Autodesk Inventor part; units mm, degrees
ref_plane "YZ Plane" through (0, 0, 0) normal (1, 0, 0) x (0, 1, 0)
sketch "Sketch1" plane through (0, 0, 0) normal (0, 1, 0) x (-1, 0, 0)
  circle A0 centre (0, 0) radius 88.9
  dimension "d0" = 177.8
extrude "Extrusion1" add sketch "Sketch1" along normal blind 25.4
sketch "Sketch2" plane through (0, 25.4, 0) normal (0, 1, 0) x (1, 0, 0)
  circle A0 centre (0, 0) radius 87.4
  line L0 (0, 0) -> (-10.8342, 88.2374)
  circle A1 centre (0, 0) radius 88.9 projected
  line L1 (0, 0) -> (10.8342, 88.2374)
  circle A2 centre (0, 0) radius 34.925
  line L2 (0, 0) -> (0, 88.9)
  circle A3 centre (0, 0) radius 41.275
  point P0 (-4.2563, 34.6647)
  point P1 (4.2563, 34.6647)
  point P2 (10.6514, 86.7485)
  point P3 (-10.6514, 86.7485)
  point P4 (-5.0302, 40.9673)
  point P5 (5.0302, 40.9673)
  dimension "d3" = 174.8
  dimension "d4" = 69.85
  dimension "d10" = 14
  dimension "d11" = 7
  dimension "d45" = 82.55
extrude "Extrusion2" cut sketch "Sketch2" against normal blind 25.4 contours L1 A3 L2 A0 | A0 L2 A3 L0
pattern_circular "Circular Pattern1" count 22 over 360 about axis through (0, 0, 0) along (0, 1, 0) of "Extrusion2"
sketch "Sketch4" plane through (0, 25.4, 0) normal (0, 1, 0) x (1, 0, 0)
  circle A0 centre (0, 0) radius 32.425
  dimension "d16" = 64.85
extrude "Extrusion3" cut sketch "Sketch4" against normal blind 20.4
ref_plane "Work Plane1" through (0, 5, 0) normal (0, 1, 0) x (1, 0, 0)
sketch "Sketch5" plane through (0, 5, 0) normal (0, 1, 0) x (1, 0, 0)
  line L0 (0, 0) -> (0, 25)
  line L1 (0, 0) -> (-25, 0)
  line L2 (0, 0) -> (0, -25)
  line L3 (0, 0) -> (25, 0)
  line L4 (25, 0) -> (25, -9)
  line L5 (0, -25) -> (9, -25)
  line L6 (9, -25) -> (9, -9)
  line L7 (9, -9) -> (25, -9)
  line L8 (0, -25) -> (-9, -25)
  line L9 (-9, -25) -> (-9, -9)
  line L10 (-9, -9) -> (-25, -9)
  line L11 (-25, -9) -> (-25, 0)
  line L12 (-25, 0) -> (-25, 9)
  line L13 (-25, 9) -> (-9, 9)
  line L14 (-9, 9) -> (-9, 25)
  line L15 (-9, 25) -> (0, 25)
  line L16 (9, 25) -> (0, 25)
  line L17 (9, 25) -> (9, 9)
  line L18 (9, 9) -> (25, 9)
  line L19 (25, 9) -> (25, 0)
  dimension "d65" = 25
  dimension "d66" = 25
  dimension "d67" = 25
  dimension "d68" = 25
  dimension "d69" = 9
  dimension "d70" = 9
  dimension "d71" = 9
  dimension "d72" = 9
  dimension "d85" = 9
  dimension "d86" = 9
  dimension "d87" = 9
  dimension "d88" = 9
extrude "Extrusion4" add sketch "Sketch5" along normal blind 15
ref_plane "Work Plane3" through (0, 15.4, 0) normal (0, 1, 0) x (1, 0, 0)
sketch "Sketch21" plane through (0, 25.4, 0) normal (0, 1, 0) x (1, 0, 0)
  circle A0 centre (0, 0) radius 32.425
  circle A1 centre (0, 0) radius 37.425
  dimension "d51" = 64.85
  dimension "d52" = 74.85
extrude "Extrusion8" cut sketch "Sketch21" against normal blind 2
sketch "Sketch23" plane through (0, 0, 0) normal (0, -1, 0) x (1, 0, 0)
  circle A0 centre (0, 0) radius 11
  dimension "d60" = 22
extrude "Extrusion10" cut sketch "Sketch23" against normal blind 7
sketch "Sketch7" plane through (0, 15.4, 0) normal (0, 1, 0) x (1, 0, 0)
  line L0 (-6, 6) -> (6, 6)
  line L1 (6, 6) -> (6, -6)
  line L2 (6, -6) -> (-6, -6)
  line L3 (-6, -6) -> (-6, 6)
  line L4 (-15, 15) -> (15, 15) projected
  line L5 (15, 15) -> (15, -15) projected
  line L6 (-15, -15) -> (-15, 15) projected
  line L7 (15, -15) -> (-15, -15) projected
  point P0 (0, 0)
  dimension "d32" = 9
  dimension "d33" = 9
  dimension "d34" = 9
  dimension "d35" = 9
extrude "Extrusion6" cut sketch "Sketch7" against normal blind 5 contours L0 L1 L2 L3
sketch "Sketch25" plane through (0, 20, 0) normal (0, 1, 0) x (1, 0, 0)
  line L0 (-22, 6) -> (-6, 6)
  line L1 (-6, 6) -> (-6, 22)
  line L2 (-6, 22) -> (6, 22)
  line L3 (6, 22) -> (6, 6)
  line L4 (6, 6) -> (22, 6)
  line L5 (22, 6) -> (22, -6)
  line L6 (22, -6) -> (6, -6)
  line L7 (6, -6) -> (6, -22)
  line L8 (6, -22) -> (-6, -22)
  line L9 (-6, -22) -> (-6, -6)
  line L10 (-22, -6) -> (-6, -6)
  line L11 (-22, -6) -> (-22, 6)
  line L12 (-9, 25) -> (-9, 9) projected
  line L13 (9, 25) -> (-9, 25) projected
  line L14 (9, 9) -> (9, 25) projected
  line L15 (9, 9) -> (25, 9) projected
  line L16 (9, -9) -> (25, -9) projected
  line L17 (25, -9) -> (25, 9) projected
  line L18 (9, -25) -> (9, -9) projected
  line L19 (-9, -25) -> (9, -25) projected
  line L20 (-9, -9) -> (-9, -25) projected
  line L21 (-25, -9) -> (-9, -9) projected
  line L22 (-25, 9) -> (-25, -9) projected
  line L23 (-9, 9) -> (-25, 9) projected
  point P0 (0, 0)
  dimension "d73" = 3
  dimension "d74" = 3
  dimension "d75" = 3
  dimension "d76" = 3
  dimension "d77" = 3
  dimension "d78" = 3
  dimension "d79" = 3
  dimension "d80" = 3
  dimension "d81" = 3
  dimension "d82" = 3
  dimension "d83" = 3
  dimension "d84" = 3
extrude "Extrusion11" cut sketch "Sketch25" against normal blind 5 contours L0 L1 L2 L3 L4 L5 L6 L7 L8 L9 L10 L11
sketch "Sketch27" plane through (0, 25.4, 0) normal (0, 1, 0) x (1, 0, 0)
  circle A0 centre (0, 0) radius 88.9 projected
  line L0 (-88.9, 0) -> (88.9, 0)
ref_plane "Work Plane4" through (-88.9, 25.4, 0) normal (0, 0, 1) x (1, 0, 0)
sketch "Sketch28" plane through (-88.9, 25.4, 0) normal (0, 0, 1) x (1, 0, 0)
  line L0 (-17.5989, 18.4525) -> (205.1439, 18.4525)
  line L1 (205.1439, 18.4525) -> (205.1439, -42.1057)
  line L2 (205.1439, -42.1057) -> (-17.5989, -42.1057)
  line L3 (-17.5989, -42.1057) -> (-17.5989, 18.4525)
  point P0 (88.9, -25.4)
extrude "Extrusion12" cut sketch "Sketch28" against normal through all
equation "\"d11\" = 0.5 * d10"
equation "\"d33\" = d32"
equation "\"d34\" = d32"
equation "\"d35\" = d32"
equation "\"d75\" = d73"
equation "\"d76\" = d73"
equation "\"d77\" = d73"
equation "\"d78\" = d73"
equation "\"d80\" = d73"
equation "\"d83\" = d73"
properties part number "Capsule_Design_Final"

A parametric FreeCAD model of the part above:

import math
import FreeCAD as App
import Part
import Sketcher
from FreeCAD import Vector
Q = App.Units.Quantity

doc = App.newDocument("Part")
body = doc.addObject("PartDesign::Body", "Body")

sketch1 = body.newObject("Sketcher::SketchObject", "Sketch")
sketch1.AttachmentSupport = (doc.getObject("XZ_Plane"), [""])
sketch1.MapMode = "FlatFace"
sketch1.addGeometry(Part.Circle(Vector(0, 0, 0), Vector(0, 0, 1), 89), False)
sketch1.addConstraint([
    Sketcher.Constraint("Coincident", 0, 3, -1, 1),
    Sketcher.Constraint("Diameter", 0, 177.8),
])
pad1 = body.newObject("PartDesign::Pad", "Pad")
pad1.Profile = sketch1
pad1.Length = 25.4
pad1.Reversed = True

sketch2 = body.newObject("Sketcher::SketchObject", "Sketch001")
sketch2.AttachmentSupport = (doc.getObject("XZ_Plane"), [""])
sketch2.MapMode = "FlatFace"
sketch2.AttachmentOffset = App.Placement(Vector(0, 0, -25.4), App.Rotation())
sketch2.addGeometry([
    Part.LineSegment(Vector(5, -41, 0), Vector(11, -87, 0)),
    Part.ArcOfCircle(Part.Circle(Vector(0, 0, 0), Vector(0, 0, 1), 87), math.radians(-97), math.radians(-83)),
    Part.LineSegment(Vector(-11, -87, 0), Vector(-5, -41, 0)),
    Part.ArcOfCircle(Part.Circle(Vector(0, 0, 0), Vector(0, 0, 1), 41), math.radians(-97), math.radians(-83)),
], False)
sketch2.addConstraint([
    Sketcher.Constraint("Coincident", 0, 2, 1, 2),
    Sketcher.Constraint("Coincident", 1, 1, 2, 1),
    Sketcher.Constraint("Coincident", 2, 2, 3, 1),
    Sketcher.Constraint("Coincident", 3, 2, 0, 1),
    Sketcher.Constraint("Coincident", 1, 3, -1, 1),
    Sketcher.Constraint("Coincident", 3, 3, -1, 1),
    Sketcher.Constraint("Horizontal", 0, 2, 1, 1),
    Sketcher.Constraint("Horizontal", 2, 2, 3, 2),
    Sketcher.Constraint("Radius", 1, 87.4),
    Sketcher.Constraint("Radius", 3, 41.275),
    Sketcher.Constraint("Angle", 0, Q("-83 deg")),
    Sketcher.Constraint("DistanceX", -1, 1, 0, 2, 10.6514),
])
pocket1 = body.newObject("PartDesign::Pocket", "Pocket")
pocket1.Profile = sketch2
pocket1.Length = 25.4
pocket1.Reversed = True
doc.recompute()

polarpattern = body.newObject("PartDesign::PolarPattern", "PolarPattern")
polarpattern.Originals = [pocket1]
polarpattern.Axis = (doc.getObject("Y_Axis"), [""])
polarpattern.Angle = 360
polarpattern.Occurrences = 22
body.Tip = polarpattern

sketch3 = body.newObject("Sketcher::SketchObject", "Sketch002")
sketch3.AttachmentSupport = (doc.getObject("XZ_Plane"), [""])
sketch3.MapMode = "FlatFace"
sketch3.AttachmentOffset = App.Placement(Vector(0, 0, -25.4), App.Rotation())
sketch3.addGeometry(Part.Circle(Vector(0, 0, 0), Vector(0, 0, 1), 32), False)
sketch3.addConstraint([
    Sketcher.Constraint("Coincident", 0, 3, -1, 1),
    Sketcher.Constraint("Diameter", 0, 64.85),
])
pocket2 = body.newObject("PartDesign::Pocket", "Pocket001")
pocket2.Profile = sketch3
pocket2.Length = 20.4
pocket2.Reversed = True

sketch4 = body.newObject("Sketcher::SketchObject", "Sketch003")
sketch4.AttachmentSupport = (doc.getObject("XZ_Plane"), [""])
sketch4.MapMode = "FlatFace"
sketch4.AttachmentOffset = App.Placement(Vector(0, 0, -5), App.Rotation())
sketch4.addGeometry([
    Part.LineSegment(Vector(-25, -9, 0), Vector(-25, 9, 0)),
    Part.LineSegment(Vector(-25, 9, 0), Vector(-9, 9, 0)),
    Part.LineSegment(Vector(-9, 9, 0), Vector(-9, 25, 0)),
    Part.LineSegment(Vector(-9, 25, 0), Vector(9, 25, 0)),
    Part.LineSegment(Vector(9, 25, 0), Vector(9, 9, 0)),
    Part.LineSegment(Vector(9, 9, 0), Vector(25, 9, 0)),
    Part.LineSegment(Vector(25, 9, 0), Vector(25, -9, 0)),
    Part.LineSegment(Vector(25, -9, 0), Vector(9, -9, 0)),
    Part.LineSegment(Vector(9, -9, 0), Vector(9, -25, 0)),
    Part.LineSegment(Vector(9, -25, 0), Vector(-9, -25, 0)),
    Part.LineSegment(Vector(-9, -25, 0), Vector(-9, -9, 0)),
    Part.LineSegment(Vector(-9, -9, 0), Vector(-25, -9, 0)),
], False)
sketch4.addConstraint([
    Sketcher.Constraint("Coincident", 0, 2, 1, 1),
    Sketcher.Constraint("Coincident", 1, 2, 2, 1),
    Sketcher.Constraint("Coincident", 2, 2, 3, 1),
    Sketcher.Constraint("Coincident", 3, 2, 4, 1),
    Sketcher.Constraint("Coincident", 4, 2, 5, 1),
    Sketcher.Constraint("Coincident", 5, 2, 6, 1),
    Sketcher.Constraint("Coincident", 6, 2, 7, 1),
    Sketcher.Constraint("Coincident", 7, 2, 8, 1),
    Sketcher.Constraint("Coincident", 8, 2, 9, 1),
    Sketcher.Constraint("Coincident", 9, 2, 10, 1),
    Sketcher.Constraint("Coincident", 10, 2, 11, 1),
    Sketcher.Constraint("Coincident", 11, 2, 0, 1),
    Sketcher.Constraint("Vertical", 0),
    Sketcher.Constraint("Horizontal", 1),
    Sketcher.Constraint("Vertical", 2),
    Sketcher.Constraint("Horizontal", 3),
    Sketcher.Constraint("Vertical", 4),
    Sketcher.Constraint("Horizontal", 5),
    Sketcher.Constraint("Vertical", 6),
    Sketcher.Constraint("Horizontal", 7),
    Sketcher.Constraint("Vertical", 8),
    Sketcher.Constraint("Horizontal", 9),
    Sketcher.Constraint("Vertical", 10),
    Sketcher.Constraint("Horizontal", 11),
    Sketcher.Constraint("Symmetric", 0, 2, 6, 2, -1, 1),
    Sketcher.Constraint("Symmetric", 2, 2, 8, 2, -1, 1),
    Sketcher.Constraint("Symmetric", 4, 2, 10, 2, -1, 1),
    Sketcher.Constraint("Symmetric", 1, 2, 4, 2, -2),
    Sketcher.Constraint("Equal", 9, 0),
    Sketcher.Constraint("Equal", 11, 2),
    Sketcher.Constraint("DistanceX", 0, 2, -1, 1, 25.0),
    Sketcher.Constraint("DistanceY", -1, 1, 0, 2, 9.0),
])
pad2 = body.newObject("PartDesign::Pad", "Pad001")
pad2.Profile = sketch4
pad2.Length = 15
pad2.Reversed = True

sketch5 = body.newObject("Sketcher::SketchObject", "Sketch004")
sketch5.AttachmentSupport = (doc.getObject("XZ_Plane"), [""])
sketch5.MapMode = "FlatFace"
sketch5.AttachmentOffset = App.Placement(Vector(0, 0, -25.4), App.Rotation())
sketch5.addGeometry([
    Part.Circle(Vector(0, 0, 0), Vector(0, 0, 1), 37),
    Part.Circle(Vector(0, 0, 0), Vector(0, 0, 1), 32),
], False)
sketch5.addConstraint([
    Sketcher.Constraint("Coincident", 0, 3, -1, 1),
    Sketcher.Constraint("Coincident", 1, 3, -1, 1),
    Sketcher.Constraint("Diameter", 0, 74.85),
    Sketcher.Constraint("Diameter", 1, 64.85),
])
pocket3 = body.newObject("PartDesign::Pocket", "Pocket002")
pocket3.Profile = sketch5
pocket3.Length = 2
pocket3.Reversed = True

sketch6 = body.newObject("Sketcher::SketchObject", "Sketch005")
sketch6.AttachmentSupport = (doc.getObject("XZ_Plane"), [""])
sketch6.MapMode = "FlatFace"
sketch6.addGeometry(Part.Circle(Vector(0, 0, 0), Vector(0, 0, 1), 11), False)
sketch6.addConstraint([
    Sketcher.Constraint("Coincident", 0, 3, -1, 1),
    Sketcher.Constraint("Diameter", 0, 22.0),
])
pocket4 = body.newObject("PartDesign::Pocket", "Pocket003")
pocket4.Profile = sketch6
pocket4.Length = 7

sketch7 = body.newObject("Sketcher::SketchObject", "Sketch006")
sketch7.AttachmentSupport = (doc.getObject("XZ_Plane"), [""])
sketch7.MapMode = "FlatFace"
sketch7.AttachmentOffset = App.Placement(Vector(0, 0, -15.4), App.Rotation())
sketch7.addGeometry([
    Part.LineSegment(Vector(6, -6, 0), Vector(-6, -6, 0)),
    Part.LineSegment(Vector(-6, -6, 0), Vector(-6, 6, 0)),
    Part.LineSegment(Vector(-6, 6, 0), Vector(6, 6, 0)),
    Part.LineSegment(Vector(6, 6, 0), Vector(6, -6, 0)),
], False)
sketch7.addConstraint([
    Sketcher.Constraint("Coincident", 0, 2, 1, 1),
    Sketcher.Constraint("Coincident", 1, 2, 2, 1),
    Sketcher.Constraint("Coincident", 2, 2, 3, 1),
    Sketcher.Constraint("Coincident", 3, 2, 0, 1),
    Sketcher.Constraint("Horizontal", 0),
    Sketcher.Constraint("Vertical", 1),
    Sketcher.Constraint("Horizontal", 2),
    Sketcher.Constraint("Vertical", 3),
    Sketcher.Constraint("Symmetric", 0, 2, 2, 2, -1, 1),
    Sketcher.Constraint("Equal", 2, 1),
    Sketcher.Constraint("DistanceX", 0, 2, 0, 1, 12.0),
])
pocket5 = body.newObject("PartDesign::Pocket", "Pocket004")
pocket5.Profile = sketch7
pocket5.Length = 5
pocket5.Reversed = True

sketch8 = body.newObject("Sketcher::SketchObject", "Sketch007")
sketch8.AttachmentSupport = (doc.getObject("XZ_Plane"), [""])
sketch8.MapMode = "FlatFace"
sketch8.AttachmentOffset = App.Placement(Vector(0, 0, -20), App.Rotation())
sketch8.addGeometry([
    Part.LineSegment(Vector(-6, -6, 0), Vector(-22, -6, 0)),
    Part.LineSegment(Vector(-22, -6, 0), Vector(-22, 6, 0)),
    Part.LineSegment(Vector(-22, 6, 0), Vector(-6, 6, 0)),
    Part.LineSegment(Vector(-6, 6, 0), Vector(-6, 22, 0)),
    Part.LineSegment(Vector(-6, 22, 0), Vector(6, 22, 0)),
    Part.LineSegment(Vector(6, 22, 0), Vector(6, 6, 0)),
    Part.LineSegment(Vector(6, 6, 0), Vector(22, 6, 0)),
    Part.LineSegment(Vector(22, 6, 0), Vector(22, -6, 0)),
    Part.LineSegment(Vector(22, -6, 0), Vector(6, -6, 0)),
    Part.LineSegment(Vector(6, -6, 0), Vector(6, -22, 0)),
    Part.LineSegment(Vector(6, -22, 0), Vector(-6, -22, 0)),
    Part.LineSegment(Vector(-6, -22, 0), Vector(-6, -6, 0)),
], False)
sketch8.addConstraint([
    Sketcher.Constraint("Coincident", 0, 2, 1, 1),
    Sketcher.Constraint("Coincident", 1, 2, 2, 1),
    Sketcher.Constraint("Coincident", 2, 2, 3, 1),
    Sketcher.Constraint("Coincident", 3, 2, 4, 1),
    Sketcher.Constraint("Coincident", 4, 2, 5, 1),
    Sketcher.Constraint("Coincident", 5, 2, 6, 1),
    Sketcher.Constraint("Coincident", 6, 2, 7, 1),
    Sketcher.Constraint("Coincident", 7, 2, 8, 1),
    Sketcher.Constraint("Coincident", 8, 2, 9, 1),
    Sketcher.Constraint("Coincident", 9, 2, 10, 1),
    Sketcher.Constraint("Coincident", 10, 2, 11, 1),
    Sketcher.Constraint("Coincident", 11, 2, 0, 1),
    Sketcher.Constraint("Horizontal", 0),
    Sketcher.Constraint("Vertical", 1),
    Sketcher.Constraint("Horizontal", 2),
    Sketcher.Constraint("Vertical", 3),
    Sketcher.Constraint("Horizontal", 4),
    Sketcher.Constraint("Vertical", 5),
    Sketcher.Constraint("Horizontal", 6),
    Sketcher.Constraint("Vertical", 7),
    Sketcher.Constraint("Horizontal", 8),
    Sketcher.Constraint("Vertical", 9),
    Sketcher.Constraint("Horizontal", 10),
    Sketcher.Constraint("Vertical", 11),
    Sketcher.Constraint("Symmetric", 0, 2, 6, 2, -1, 1),
    Sketcher.Constraint("Symmetric", 2, 2, 8, 2, -1, 1),
    Sketcher.Constraint("Symmetric", 4, 2, 10, 2, -1, 1),
    Sketcher.Constraint("Symmetric", 2, 2, 5, 2, -2),
    Sketcher.Constraint("Equal", 10, 1),
    Sketcher.Constraint("Equal", 8, 3),
    Sketcher.Constraint("DistanceX", 0, 2, 0, 1, 16.0),
    Sketcher.Constraint("DistanceX", 4, 1, 4, 2, 12.0),
])
pocket6 = body.newObject("PartDesign::Pocket", "Pocket005")
pocket6.Profile = sketch8
pocket6.Length = 5
pocket6.Reversed = True

sketch9 = body.newObject("Sketcher::SketchObject", "Sketch008")
sketch9.AttachmentSupport = (doc.getObject("XY_Plane"), [""])
sketch9.MapMode = "FlatFace"
sketch9.addGeometry([
    Part.LineSegment(Vector(116, 44, 0), Vector(-106, 44, 0)),
    Part.LineSegment(Vector(-106, 44, 0), Vector(-106, -17, 0)),
    Part.LineSegment(Vector(-106, -17, 0), Vector(116, -17, 0)),
    Part.LineSegment(Vector(116, -17, 0), Vector(116, 44, 0)),
], False)
sketch9.addConstraint([
    Sketcher.Constraint("Coincident", 0, 2, 1, 1),
    Sketcher.Constraint("Coincident", 1, 2, 2, 1),
    Sketcher.Constraint("Coincident", 2, 2, 3, 1),
    Sketcher.Constraint("Coincident", 3, 2, 0, 1),
    Sketcher.Constraint("Horizontal", 0),
    Sketcher.Constraint("Vertical", 1),
    Sketcher.Constraint("Horizontal", 2),
    Sketcher.Constraint("Vertical", 3),
    Sketcher.Constraint("DistanceX", 0, 2, 0, 1, 222.7428),
    Sketcher.Constraint("DistanceY", 1, 2, 1, 1, 60.5582),
    Sketcher.Constraint("DistanceX", 0, 2, -1, 1, 106.499),
    Sketcher.Constraint("DistanceY", -1, 1, 0, 2, 43.8525),
])
pocket7 = body.newObject("PartDesign::Pocket", "Pocket006")
pocket7.Profile = sketch9
pocket7.Type = "ThroughAll"

doc.recompute()
